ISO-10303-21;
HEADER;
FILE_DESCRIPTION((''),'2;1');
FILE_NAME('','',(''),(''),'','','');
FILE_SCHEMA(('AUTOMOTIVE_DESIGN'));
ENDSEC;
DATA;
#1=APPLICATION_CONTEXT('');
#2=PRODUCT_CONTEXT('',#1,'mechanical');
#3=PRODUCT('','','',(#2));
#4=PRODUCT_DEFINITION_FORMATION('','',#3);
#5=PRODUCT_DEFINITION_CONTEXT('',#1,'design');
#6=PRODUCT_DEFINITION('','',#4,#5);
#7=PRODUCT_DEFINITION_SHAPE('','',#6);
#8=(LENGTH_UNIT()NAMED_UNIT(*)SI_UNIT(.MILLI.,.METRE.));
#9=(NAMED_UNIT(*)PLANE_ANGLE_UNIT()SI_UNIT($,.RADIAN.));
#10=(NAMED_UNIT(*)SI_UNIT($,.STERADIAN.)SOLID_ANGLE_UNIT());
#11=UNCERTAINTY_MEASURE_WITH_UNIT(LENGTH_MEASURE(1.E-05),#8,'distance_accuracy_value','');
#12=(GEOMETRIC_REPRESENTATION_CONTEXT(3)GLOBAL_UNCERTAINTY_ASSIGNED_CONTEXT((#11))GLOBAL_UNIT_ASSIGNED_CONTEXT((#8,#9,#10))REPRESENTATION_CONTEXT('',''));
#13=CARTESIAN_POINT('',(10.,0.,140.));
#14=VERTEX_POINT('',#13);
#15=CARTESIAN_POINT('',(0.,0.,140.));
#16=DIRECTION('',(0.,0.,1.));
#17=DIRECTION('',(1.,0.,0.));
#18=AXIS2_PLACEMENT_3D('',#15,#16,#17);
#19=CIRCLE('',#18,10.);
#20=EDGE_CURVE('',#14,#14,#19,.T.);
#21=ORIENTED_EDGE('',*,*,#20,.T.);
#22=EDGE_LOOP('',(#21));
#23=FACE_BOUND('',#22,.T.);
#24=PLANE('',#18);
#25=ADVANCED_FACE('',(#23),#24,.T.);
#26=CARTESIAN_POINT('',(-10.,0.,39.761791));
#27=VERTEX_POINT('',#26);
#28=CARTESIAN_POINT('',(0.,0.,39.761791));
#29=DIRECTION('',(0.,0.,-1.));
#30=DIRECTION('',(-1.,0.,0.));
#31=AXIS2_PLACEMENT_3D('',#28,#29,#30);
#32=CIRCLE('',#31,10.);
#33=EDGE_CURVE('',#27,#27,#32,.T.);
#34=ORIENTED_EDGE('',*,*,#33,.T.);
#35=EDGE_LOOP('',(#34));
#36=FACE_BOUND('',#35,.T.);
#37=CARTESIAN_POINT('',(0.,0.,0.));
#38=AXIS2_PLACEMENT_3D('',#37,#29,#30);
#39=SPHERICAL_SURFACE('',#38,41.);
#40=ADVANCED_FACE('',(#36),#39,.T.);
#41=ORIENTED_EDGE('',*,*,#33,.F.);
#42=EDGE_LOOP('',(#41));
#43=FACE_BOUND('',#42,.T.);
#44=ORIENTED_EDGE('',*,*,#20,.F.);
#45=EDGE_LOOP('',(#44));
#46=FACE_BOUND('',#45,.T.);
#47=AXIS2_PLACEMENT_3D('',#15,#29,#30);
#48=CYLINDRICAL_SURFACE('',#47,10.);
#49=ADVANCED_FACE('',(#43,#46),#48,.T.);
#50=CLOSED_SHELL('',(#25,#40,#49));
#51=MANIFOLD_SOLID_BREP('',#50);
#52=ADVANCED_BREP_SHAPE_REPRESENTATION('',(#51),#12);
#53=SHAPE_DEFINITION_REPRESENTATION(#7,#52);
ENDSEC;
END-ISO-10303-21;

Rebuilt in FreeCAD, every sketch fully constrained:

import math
import FreeCAD as App
import Part
import Sketcher
Q = App.Units.Quantity

doc = App.newDocument("Part")
body = doc.addObject("PartDesign::Body", "Body")

# Sketch on XY plane
sketch1 = doc.addObject("Sketcher::SketchObject", "Sketch")
body.addObject(sketch1)
sketch1.AttachmentSupport = (doc.XY_Plane, [""])
sketch1.MapMode = "FlatFace"
sketch1.addGeometry([
    Part.LineSegment(App.Vector(0, -41, 0), App.Vector(0, 41, 0)),
    Part.ArcOfCircle(Part.Circle(App.Vector(0, 0, 0), App.Vector(0, 0, 1), 41), math.radians(90), math.radians(270)),
], False)
sketch1.addConstraint([
    Sketcher.Constraint("Coincident", 0, 1, 1, 2),
    Sketcher.Constraint("Coincident", 1, 1, 0, 2),
    Sketcher.Constraint("Vertical", 0),
    Sketcher.Constraint("Coincident", 1, 3, -1, 1),
    Sketcher.Constraint("PointOnObject", 0, 1, -2),
    Sketcher.Constraint("Radius", 1, Q("41 mm")),
])
revolution = doc.addObject("PartDesign::Revolution", "Revolution")
body.addObject(revolution)
revolution.Profile = sketch1
revolution.ReferenceAxis = (sketch1, ["V_Axis"])
revolution.Angle = 360

# Sketch on XY plane
sketch2 = doc.addObject("Sketcher::SketchObject", "Sketch001")
body.addObject(sketch2)
sketch2.AttachmentSupport = (doc.XY_Plane, [""])
sketch2.MapMode = "FlatFace"
sketch2.addGeometry(Part.Circle(App.Vector(0, 0, 0), App.Vector(0, 0, 1), 10), False)
sketch2.addConstraint([
    Sketcher.Constraint("Coincident", 0, 3, -1, 1),
    Sketcher.Constraint("Diameter", 0, Q("20 mm")),
])
pad1 = doc.addObject("PartDesign::Pad", "Pad")
body.addObject(pad1)
pad1.Profile = sketch2
pad1.Length = 140

doc.recompute()
